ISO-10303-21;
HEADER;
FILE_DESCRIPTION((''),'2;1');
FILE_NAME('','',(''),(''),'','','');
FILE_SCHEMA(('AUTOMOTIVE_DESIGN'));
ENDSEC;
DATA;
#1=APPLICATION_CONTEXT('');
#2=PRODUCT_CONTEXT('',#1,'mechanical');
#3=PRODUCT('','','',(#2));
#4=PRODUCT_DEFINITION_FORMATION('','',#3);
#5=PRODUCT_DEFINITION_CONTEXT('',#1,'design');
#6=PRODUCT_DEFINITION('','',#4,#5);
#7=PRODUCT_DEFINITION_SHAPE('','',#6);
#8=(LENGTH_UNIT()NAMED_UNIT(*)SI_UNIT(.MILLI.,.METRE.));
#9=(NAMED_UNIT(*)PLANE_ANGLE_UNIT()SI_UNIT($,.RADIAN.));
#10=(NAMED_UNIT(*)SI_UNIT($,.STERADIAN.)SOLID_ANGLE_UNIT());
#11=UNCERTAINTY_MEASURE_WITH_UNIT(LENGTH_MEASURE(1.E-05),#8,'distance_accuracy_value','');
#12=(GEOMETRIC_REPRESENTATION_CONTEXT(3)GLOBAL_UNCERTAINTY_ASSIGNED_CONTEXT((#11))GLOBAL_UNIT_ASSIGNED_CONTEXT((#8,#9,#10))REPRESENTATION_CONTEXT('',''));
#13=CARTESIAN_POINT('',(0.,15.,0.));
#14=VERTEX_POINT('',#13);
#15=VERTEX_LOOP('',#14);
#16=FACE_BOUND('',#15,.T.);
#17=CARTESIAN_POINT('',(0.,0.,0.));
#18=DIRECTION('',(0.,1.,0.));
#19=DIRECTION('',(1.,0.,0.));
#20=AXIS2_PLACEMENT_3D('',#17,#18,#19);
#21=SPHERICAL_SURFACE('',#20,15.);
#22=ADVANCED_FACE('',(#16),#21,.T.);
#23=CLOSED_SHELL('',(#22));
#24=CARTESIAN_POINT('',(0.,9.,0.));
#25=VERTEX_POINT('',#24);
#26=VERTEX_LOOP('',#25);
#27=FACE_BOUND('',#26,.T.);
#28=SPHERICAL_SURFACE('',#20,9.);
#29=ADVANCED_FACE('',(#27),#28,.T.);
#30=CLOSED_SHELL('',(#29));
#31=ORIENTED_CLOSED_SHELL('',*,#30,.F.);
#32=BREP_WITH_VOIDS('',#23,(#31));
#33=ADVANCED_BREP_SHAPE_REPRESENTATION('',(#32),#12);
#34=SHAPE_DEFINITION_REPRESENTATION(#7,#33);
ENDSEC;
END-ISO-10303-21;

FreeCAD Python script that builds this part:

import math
import FreeCAD as App
import Part
import Sketcher
from FreeCAD import Vector

doc = App.newDocument("Part")
params = doc.addObject("Spreadsheet::Sheet", "Params")
for row, (alias, value) in enumerate([
    ("sketch1_radius", "15 mm"),
    ("sketch1_radius2", "9 mm"),
    ("revolution_angle", "360 deg"),
], start=1):
    params.set(f"A{row}", alias)
    params.set(f"B{row}", "=" + value)
    params.setAlias(f"B{row}", alias)

body = doc.addObject("PartDesign::Body", "Body")

sketch1 = body.newObject("Sketcher::SketchObject", "Sketch")
sketch1.AttachmentSupport = (doc.getObject("XY_Plane"), [""])
sketch1.MapMode = "FlatFace"
sketch1.addGeometry([
    Part.LineSegment(Vector(0, -9, 0), Vector(0, -15, 0)),
    Part.ArcOfCircle(Part.Circle(Vector(0, 0, 0), Vector(0, 0, 1), 15), math.radians(-90), math.radians(90)),
    Part.LineSegment(Vector(0, 15, 0), Vector(0, 9, 0)),
    Part.ArcOfCircle(Part.Circle(Vector(0, 0, 0), Vector(0, 0, 1), 9), math.radians(-90), math.radians(90)),
], False)
sketch1.addConstraint([
    Sketcher.Constraint("Coincident", 0, 2, 1, 1),
    Sketcher.Constraint("Coincident", 1, 2, 2, 1),
    Sketcher.Constraint("Coincident", 2, 2, 3, 2),
    Sketcher.Constraint("Coincident", 3, 1, 0, 1),
    Sketcher.Constraint("Vertical", 0),
    Sketcher.Constraint("Vertical", 2),
    Sketcher.Constraint("Coincident", 1, 3, -1, 1),
    Sketcher.Constraint("Coincident", 3, 3, -1, 1),
    Sketcher.Constraint("PointOnObject", 0, 2, -2),
    Sketcher.Constraint("PointOnObject", 1, 2, -2),
    Sketcher.Constraint("Radius", 1, 15.0),
    Sketcher.Constraint("Radius", 3, 9.0),
])
sketch1.setExpression("Constraints[10]", "Params.sketch1_radius")
sketch1.setExpression("Constraints[11]", "Params.sketch1_radius2")
revolution = body.newObject("PartDesign::Revolution", "Revolution")
revolution.Profile = sketch1
revolution.ReferenceAxis = (sketch1, ["V_Axis"])
revolution.setExpression("Angle", "Params.revolution_angle")

doc.recompute()
